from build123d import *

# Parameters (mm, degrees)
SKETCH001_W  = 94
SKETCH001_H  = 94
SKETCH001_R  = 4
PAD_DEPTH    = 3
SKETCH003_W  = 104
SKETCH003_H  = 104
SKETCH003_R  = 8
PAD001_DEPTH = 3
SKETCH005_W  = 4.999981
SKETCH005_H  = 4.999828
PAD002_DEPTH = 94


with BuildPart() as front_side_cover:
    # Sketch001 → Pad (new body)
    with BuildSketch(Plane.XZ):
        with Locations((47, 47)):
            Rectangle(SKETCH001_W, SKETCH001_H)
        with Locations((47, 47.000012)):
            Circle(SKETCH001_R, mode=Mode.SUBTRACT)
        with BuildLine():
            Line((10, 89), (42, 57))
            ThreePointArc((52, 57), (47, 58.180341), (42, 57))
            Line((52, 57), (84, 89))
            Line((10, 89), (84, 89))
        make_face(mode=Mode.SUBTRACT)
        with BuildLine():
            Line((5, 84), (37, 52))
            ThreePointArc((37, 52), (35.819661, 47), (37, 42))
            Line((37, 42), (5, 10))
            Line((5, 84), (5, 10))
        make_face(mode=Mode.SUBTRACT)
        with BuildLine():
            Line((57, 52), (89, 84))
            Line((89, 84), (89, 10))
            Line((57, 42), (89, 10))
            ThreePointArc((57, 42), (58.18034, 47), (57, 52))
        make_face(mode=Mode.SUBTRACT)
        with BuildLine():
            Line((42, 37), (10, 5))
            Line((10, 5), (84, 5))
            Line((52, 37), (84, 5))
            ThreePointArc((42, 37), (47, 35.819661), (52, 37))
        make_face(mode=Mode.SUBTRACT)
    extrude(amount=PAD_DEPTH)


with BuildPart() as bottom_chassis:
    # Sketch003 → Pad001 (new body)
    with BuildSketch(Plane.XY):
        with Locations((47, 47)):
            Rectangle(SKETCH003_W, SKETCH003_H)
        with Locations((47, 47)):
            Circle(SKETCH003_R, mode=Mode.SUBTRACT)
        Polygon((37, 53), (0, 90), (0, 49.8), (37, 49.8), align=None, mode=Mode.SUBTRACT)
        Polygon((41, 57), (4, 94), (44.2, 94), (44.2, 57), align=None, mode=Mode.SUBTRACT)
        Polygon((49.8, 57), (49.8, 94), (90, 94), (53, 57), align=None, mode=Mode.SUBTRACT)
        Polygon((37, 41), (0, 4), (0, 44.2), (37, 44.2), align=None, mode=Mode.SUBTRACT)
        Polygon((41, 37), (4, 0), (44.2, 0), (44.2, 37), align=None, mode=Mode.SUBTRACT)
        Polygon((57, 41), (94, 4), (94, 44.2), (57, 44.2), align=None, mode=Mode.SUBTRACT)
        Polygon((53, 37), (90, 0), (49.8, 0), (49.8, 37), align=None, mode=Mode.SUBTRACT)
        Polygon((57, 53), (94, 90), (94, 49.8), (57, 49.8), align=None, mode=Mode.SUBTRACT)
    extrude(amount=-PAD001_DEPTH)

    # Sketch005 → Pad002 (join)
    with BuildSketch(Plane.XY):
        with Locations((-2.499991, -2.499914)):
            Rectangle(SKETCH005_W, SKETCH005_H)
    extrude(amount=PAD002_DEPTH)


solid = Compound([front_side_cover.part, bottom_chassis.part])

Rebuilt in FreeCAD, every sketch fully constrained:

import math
import FreeCAD as App
import Part
import Sketcher


def add_polygon(sketch, points):
    """Adds a closed chain of lines whose ends are joined by coincident constraints."""
    first, n = sketch.GeometryCount, len(points)
    for a, b in zip(points, points[1:] + points[:1]):
        sketch.addGeometry(Part.LineSegment(App.Vector(*a, 0), App.Vector(*b, 0)), False)
    for i in range(n):
        sketch.addConstraint(Sketcher.Constraint("Coincident", first + i, 2, first + (i + 1) % n, 1))

doc = App.newDocument("Part")
body = doc.addObject("PartDesign::Body", "Body")

# Sketch on XZ plane
sketch1 = doc.addObject("Sketcher::SketchObject", "Sketch")
body.addObject(sketch1)
sketch1.AttachmentSupport = (doc.XZ_Plane, [""])
sketch1.MapMode = "FlatFace"
add_polygon(sketch1, [(0, 94), (0, 0), (94, 0), (94, 94)])  # lines 0-3
sketch1.addGeometry(Part.LineSegment(App.Vector(5, 10, 0), App.Vector(5, 84, 0)), False)  # 4
sketch1.addGeometry(Part.LineSegment(App.Vector(5, 84, 0), App.Vector(37, 52, 0)), False)  # 5
sketch1.addGeometry(Part.ArcOfCircle(Part.Circle(App.Vector(47, 47, 0), App.Vector(0, 0, 1), 11.2), math.radians(153), math.radians(207)), False)  # 6
sketch1.addGeometry(Part.LineSegment(App.Vector(37, 42, 0), App.Vector(5, 10, 0)), False)  # 7
sketch1.addGeometry(Part.LineSegment(App.Vector(10, 5, 0), App.Vector(42, 37, 0)), False)  # 8
sketch1.addGeometry(Part.ArcOfCircle(Part.Circle(App.Vector(47, 47, 0), App.Vector(0, 0, 1), 11.2), math.radians(-117), math.radians(-63)), False)  # 9
sketch1.addGeometry(Part.LineSegment(App.Vector(52, 37, 0), App.Vector(84, 5, 0)), False)  # 10
sketch1.addGeometry(Part.LineSegment(App.Vector(84, 5, 0), App.Vector(10, 5, 0)), False)  # 11
sketch1.addGeometry(Part.Circle(App.Vector(47, 47, 0), App.Vector(0, 0, 1), 4), False)  # 12
sketch1.addGeometry(Part.ArcOfCircle(Part.Circle(App.Vector(47, 47, 0), App.Vector(0, 0, 1), 11.2), math.radians(-27), math.radians(27)), False)  # 13
sketch1.addGeometry(Part.LineSegment(App.Vector(57, 52, 0), App.Vector(89, 84, 0)), False)  # 14
sketch1.addGeometry(Part.LineSegment(App.Vector(89, 84, 0), App.Vector(89, 10, 0)), False)  # 15
sketch1.addGeometry(Part.LineSegment(App.Vector(89, 10, 0), App.Vector(57, 42, 0)), False)  # 16
sketch1.addGeometry(Part.LineSegment(App.Vector(42, 57, 0), App.Vector(10, 89, 0)), False)  # 17
sketch1.addGeometry(Part.LineSegment(App.Vector(10, 89, 0), App.Vector(84, 89, 0)), False)  # 18
sketch1.addGeometry(Part.LineSegment(App.Vector(84, 89, 0), App.Vector(52, 57, 0)), False)  # 19
sketch1.addGeometry(Part.ArcOfCircle(Part.Circle(App.Vector(47, 47, 0), App.Vector(0, 0, 1), 11.2), math.radians(63), math.radians(117)), False)  # 20
sketch1.addConstraint([
    Sketcher.Constraint("Coincident", 4, 2, 5, 1),
    Sketcher.Constraint("Coincident", 5, 2, 6, 1),
    Sketcher.Constraint("Coincident", 6, 2, 7, 1),
    Sketcher.Constraint("Coincident", 7, 2, 4, 1),
    Sketcher.Constraint("Coincident", 8, 2, 9, 1),
    Sketcher.Constraint("Coincident", 9, 2, 10, 1),
    Sketcher.Constraint("Coincident", 10, 2, 11, 1),
    Sketcher.Constraint("Coincident", 11, 2, 8, 1),
    Sketcher.Constraint("Coincident", 13, 2, 14, 1),
    Sketcher.Constraint("Coincident", 14, 2, 15, 1),
    Sketcher.Constraint("Coincident", 15, 2, 16, 1),
    Sketcher.Constraint("Coincident", 16, 2, 13, 1),
    Sketcher.Constraint("Coincident", 17, 2, 18, 1),
    Sketcher.Constraint("Coincident", 18, 2, 19, 1),
    Sketcher.Constraint("Coincident", 19, 2, 20, 1),
    Sketcher.Constraint("Coincident", 20, 2, 17, 1),
    Sketcher.Constraint("Vertical", 0),
    Sketcher.Constraint("Horizontal", 1),
    Sketcher.Constraint("Vertical", 2),
    Sketcher.Constraint("Horizontal", 3),
    Sketcher.Constraint("Vertical", 4),
    Sketcher.Constraint("Horizontal", 11),
    Sketcher.Constraint("Vertical", 15),
    Sketcher.Constraint("Horizontal", 18),
    Sketcher.Constraint("Coincident", 0, 2, -1, 1),
    Sketcher.Constraint("Coincident", 12, 3, 9, 3),
    Sketcher.Constraint("Coincident", 13, 3, 6, 3),
    Sketcher.Constraint("Coincident", 20, 3, 9, 3),
    Sketcher.Constraint("Equal", 6, 9),
    Sketcher.Constraint("Perpendicular", 5, 7),
    Sketcher.Constraint("Parallel", 7, 8),
    Sketcher.Constraint("Perpendicular", 8, 10),
    Sketcher.Constraint("Perpendicular", 10, 14),
    Sketcher.Constraint("Perpendicular", 14, 16),
    Sketcher.Constraint("Parallel", 16, 17),
    Sketcher.Constraint("Perpendicular", 17, 19),
    Sketcher.Constraint("Horizontal", 8, 2, 9, 2),
    Sketcher.Constraint("Horizontal", 5, 2, 13, 2),
    Sketcher.Constraint("Horizontal", 4, 2, 14, 2),
    Sketcher.Constraint("Horizontal", 7, 2, 15, 2),
    Sketcher.Constraint("Horizontal", 6, 2, 16, 2),
    Sketcher.Constraint("Horizontal", 19, 2, 20, 2),
    Sketcher.Constraint("Vertical", 12, 3, 13, 3),
    Sketcher.Constraint("Vertical", 5, 2, 6, 2),
    Sketcher.Constraint("Vertical", 11, 2, 17, 2),
    Sketcher.Constraint("Vertical", 9, 2, 19, 2),
    Sketcher.Constraint("Equal", 3, 0),
    Sketcher.Constraint("Equal", 18, 4),
    Sketcher.Constraint("Equal", 7, 8),
    Sketcher.Constraint("Diameter", 12, 8.0),
    Sketcher.Constraint("DistanceX", 1, 1, 1, 2, 94.0),
    Sketcher.Constraint("DistanceX", 11, 2, 11, 1, 74.0),
    Sketcher.Constraint("DistanceY", -1, 1, 6, 3, 47.0),
    Sketcher.Constraint("DistanceX", -1, 1, 9, 3, 47.0),
    Sketcher.Constraint("DistanceX", -1, 1, 4, 2, 5.0),
    Sketcher.Constraint("DistanceX", -1, 1, 5, 2, 37.0),
    Sketcher.Constraint("DistanceY", -1, 1, 8, 2, 37.0),
    Sketcher.Constraint("DistanceX", -1, 1, 13, 2, 57.0),
    Sketcher.Constraint("DistanceY", -1, 1, 17, 2, 89.0),
])
pad1 = doc.addObject("PartDesign::Pad", "Pad")
body.addObject(pad1)
pad1.Profile = sketch1
pad1.Length = 3
body2 = doc.addObject("PartDesign::Body", "Body001")

# Sketch on XY plane
sketch2 = doc.addObject("Sketcher::SketchObject", "Sketch001")
body2.addObject(sketch2)
sketch2.AttachmentSupport = (doc.getObject("XY_Plane001"), [""])
sketch2.MapMode = "FlatFace"
add_polygon(sketch2, [(-5, 99), (-5, -5), (99, -5), (99, 99)])  # lines 0-3
add_polygon(sketch2, [(4, 0), (41, 37), (44.2, 37), (44.2, 0)])  # lines 4-7
add_polygon(sketch2, [(37, 44.2), (37, 41), (0, 4), (0, 44.2)])  # lines 8-11
add_polygon(sketch2, [(49.8, 37), (53, 37), (90, 0), (49.8, 0)])  # lines 12-15
add_polygon(sketch2, [(94, 4), (57, 41), (57, 44.2), (94, 44.2)])  # lines 16-19
add_polygon(sketch2, [(0, 90), (37, 53), (37, 49.8), (0, 49.8)])  # lines 20-23
add_polygon(sketch2, [(44.2, 57), (41, 57), (4, 94), (44.2, 94)])  # lines 24-27
sketch2.addGeometry(Part.Circle(App.Vector(47, 47, 0), App.Vector(0, 0, 1), 8), False)  # 28
add_polygon(sketch2, [(57, 49.8), (57, 53), (94, 90), (94, 49.8)])  # lines 29-32
add_polygon(sketch2, [(53, 57), (49.8, 57), (49.8, 94), (90, 94)])  # lines 33-36
sketch2.addConstraint([
    Sketcher.Constraint("Vertical", 0),
    Sketcher.Constraint("Horizontal", 1),
    Sketcher.Constraint("Vertical", 2),
    Sketcher.Constraint("Horizontal", 3),
    Sketcher.Constraint("Horizontal", 5),
    Sketcher.Constraint("Vertical", 6),
    Sketcher.Constraint("Horizontal", 7),
    Sketcher.Constraint("Vertical", 8),
    Sketcher.Constraint("Vertical", 10),
    Sketcher.Constraint("Horizontal", 11),
    Sketcher.Constraint("Horizontal", 12),
    Sketcher.Constraint("Horizontal", 14),
    Sketcher.Constraint("Vertical", 15),
    Sketcher.Constraint("Vertical", 17),
    Sketcher.Constraint("Horizontal", 18),
    Sketcher.Constraint("Vertical", 19),
    Sketcher.Constraint("Vertical", 21),
    Sketcher.Constraint("Horizontal", 22),
    Sketcher.Constraint("Vertical", 23),
    Sketcher.Constraint("Horizontal", 24),
    Sketcher.Constraint("Horizontal", 26),
    Sketcher.Constraint("Vertical", 27),
    Sketcher.Constraint("Vertical", 29),
    Sketcher.Constraint("Vertical", 31),
    Sketcher.Constraint("Horizontal", 32),
    Sketcher.Constraint("Horizontal", 33),
    Sketcher.Constraint("Vertical", 34),
    Sketcher.Constraint("Horizontal", 35),
    Sketcher.Constraint("PointOnObject", 6, 2, -1),
    Sketcher.Constraint("PointOnObject", 9, 2, -2),
    Sketcher.Constraint("PointOnObject", 13, 2, -1),
    Sketcher.Constraint("PointOnObject", 22, 2, -2),
    Sketcher.Constraint("Parallel", 4, 9),
    Sketcher.Constraint("Perpendicular", 9, 13),
    Sketcher.Constraint("Parallel", 13, 16),
    Sketcher.Constraint("Parallel", 16, 20),
    Sketcher.Constraint("Parallel", 20, 25),
    Sketcher.Constraint("Perpendicular", 25, 30),
    Sketcher.Constraint("Parallel", 30, 36),
    Sketcher.Constraint("Horizontal", 5, 2, 12, 2),
    Sketcher.Constraint("Horizontal", 8, 2, 16, 2),
    Sketcher.Constraint("Horizontal", 11, 2, 17, 2),
    Sketcher.Constraint("Horizontal", 9, 2, 19, 2),
    Sketcher.Constraint("Horizontal", 20, 2, 29, 2),
    Sketcher.Constraint("Horizontal", 23, 2, 30, 2),
    Sketcher.Constraint("Horizontal", 22, 2, 31, 2),
    Sketcher.Constraint("Horizontal", 27, 2, 33, 2),
    Sketcher.Constraint("Horizontal", 26, 2, 34, 2),
    Sketcher.Constraint("Vertical", 11, 2, 20, 2),
    Sketcher.Constraint("Vertical", 4, 2, 24, 2),
    Sketcher.Constraint("Vertical", 7, 2, 25, 2),
    Sketcher.Constraint("Vertical", 6, 2, 26, 2),
    Sketcher.Constraint("Vertical", 17, 2, 29, 2),
    Sketcher.Constraint("Vertical", 19, 2, 30, 2),
    Sketcher.Constraint("Vertical", 15, 2, 33, 2),
    Sketcher.Constraint("Vertical", 13, 2, 35, 2),
    Sketcher.Constraint("Equal", 5, 12),
    Sketcher.Constraint("Equal", 3, 0),
    Sketcher.Constraint("Equal", 32, 6),
    Sketcher.Constraint("Equal", 33, 8),
    Sketcher.Constraint("Equal", 17, 21),
    Sketcher.Constraint("Diameter", 28, 16.0),
    Sketcher.Constraint("DistanceX", 1, 1, 1, 2, 104.0),
    Sketcher.Constraint("DistanceX", 11, 1, 11, 2, 37.0),
    Sketcher.Constraint("DistanceX", 5, 1, 5, 2, 3.2),
    Sketcher.Constraint("DistanceX", -1, 1, 28, 3, 47.0),
    Sketcher.Constraint("DistanceY", -1, 1, 28, 3, 47.0),
    Sketcher.Constraint("DistanceX", 0, 2, -1, 1, 5.0),
    Sketcher.Constraint("DistanceY", 0, 2, -1, 1, 5.0),
    Sketcher.Constraint("DistanceX", -1, 1, 4, 2, 41.0),
    Sketcher.Constraint("DistanceY", -1, 1, 8, 2, 41.0),
    Sketcher.Constraint("DistanceX", -1, 1, 12, 2, 53.0),
    Sketcher.Constraint("DistanceX", -1, 1, 16, 2, 57.0),
    Sketcher.Constraint("DistanceY", -1, 1, 20, 2, 53.0),
    Sketcher.Constraint("DistanceY", -1, 1, 24, 2, 57.0),
])
pad2 = doc.addObject("PartDesign::Pad", "Pad001")
body2.addObject(pad2)
pad2.Profile = sketch2
pad2.Length = 3
pad2.Reversed = True

# Sketch on XY plane
sketch3 = doc.addObject("Sketcher::SketchObject", "Sketch002")
body2.addObject(sketch3)
sketch3.AttachmentSupport = (doc.getObject("XY_Plane001"), [""])
sketch3.MapMode = "FlatFace"
add_polygon(sketch3, [(-5, 0), (-5, -5), (0, -5), (0, 0)])  # lines 0-3
sketch3.addConstraint([
    Sketcher.Constraint("Vertical", 0),
    Sketcher.Constraint("Horizontal", 1),
    Sketcher.Constraint("Vertical", 2),
    Sketcher.Constraint("Horizontal", 3),
    Sketcher.Constraint("Coincident", 2, 2, -1, 1),
    Sketcher.Constraint("DistanceX", 1, 1, 1, 2, 4.999981),
    Sketcher.Constraint("DistanceY", 0, 2, 0, 1, 4.999828),
])
pad3 = doc.addObject("PartDesign::Pad", "Pad002")
body2.addObject(pad3)
pad3.Profile = sketch3
pad3.Length = 94

doc.recompute()
